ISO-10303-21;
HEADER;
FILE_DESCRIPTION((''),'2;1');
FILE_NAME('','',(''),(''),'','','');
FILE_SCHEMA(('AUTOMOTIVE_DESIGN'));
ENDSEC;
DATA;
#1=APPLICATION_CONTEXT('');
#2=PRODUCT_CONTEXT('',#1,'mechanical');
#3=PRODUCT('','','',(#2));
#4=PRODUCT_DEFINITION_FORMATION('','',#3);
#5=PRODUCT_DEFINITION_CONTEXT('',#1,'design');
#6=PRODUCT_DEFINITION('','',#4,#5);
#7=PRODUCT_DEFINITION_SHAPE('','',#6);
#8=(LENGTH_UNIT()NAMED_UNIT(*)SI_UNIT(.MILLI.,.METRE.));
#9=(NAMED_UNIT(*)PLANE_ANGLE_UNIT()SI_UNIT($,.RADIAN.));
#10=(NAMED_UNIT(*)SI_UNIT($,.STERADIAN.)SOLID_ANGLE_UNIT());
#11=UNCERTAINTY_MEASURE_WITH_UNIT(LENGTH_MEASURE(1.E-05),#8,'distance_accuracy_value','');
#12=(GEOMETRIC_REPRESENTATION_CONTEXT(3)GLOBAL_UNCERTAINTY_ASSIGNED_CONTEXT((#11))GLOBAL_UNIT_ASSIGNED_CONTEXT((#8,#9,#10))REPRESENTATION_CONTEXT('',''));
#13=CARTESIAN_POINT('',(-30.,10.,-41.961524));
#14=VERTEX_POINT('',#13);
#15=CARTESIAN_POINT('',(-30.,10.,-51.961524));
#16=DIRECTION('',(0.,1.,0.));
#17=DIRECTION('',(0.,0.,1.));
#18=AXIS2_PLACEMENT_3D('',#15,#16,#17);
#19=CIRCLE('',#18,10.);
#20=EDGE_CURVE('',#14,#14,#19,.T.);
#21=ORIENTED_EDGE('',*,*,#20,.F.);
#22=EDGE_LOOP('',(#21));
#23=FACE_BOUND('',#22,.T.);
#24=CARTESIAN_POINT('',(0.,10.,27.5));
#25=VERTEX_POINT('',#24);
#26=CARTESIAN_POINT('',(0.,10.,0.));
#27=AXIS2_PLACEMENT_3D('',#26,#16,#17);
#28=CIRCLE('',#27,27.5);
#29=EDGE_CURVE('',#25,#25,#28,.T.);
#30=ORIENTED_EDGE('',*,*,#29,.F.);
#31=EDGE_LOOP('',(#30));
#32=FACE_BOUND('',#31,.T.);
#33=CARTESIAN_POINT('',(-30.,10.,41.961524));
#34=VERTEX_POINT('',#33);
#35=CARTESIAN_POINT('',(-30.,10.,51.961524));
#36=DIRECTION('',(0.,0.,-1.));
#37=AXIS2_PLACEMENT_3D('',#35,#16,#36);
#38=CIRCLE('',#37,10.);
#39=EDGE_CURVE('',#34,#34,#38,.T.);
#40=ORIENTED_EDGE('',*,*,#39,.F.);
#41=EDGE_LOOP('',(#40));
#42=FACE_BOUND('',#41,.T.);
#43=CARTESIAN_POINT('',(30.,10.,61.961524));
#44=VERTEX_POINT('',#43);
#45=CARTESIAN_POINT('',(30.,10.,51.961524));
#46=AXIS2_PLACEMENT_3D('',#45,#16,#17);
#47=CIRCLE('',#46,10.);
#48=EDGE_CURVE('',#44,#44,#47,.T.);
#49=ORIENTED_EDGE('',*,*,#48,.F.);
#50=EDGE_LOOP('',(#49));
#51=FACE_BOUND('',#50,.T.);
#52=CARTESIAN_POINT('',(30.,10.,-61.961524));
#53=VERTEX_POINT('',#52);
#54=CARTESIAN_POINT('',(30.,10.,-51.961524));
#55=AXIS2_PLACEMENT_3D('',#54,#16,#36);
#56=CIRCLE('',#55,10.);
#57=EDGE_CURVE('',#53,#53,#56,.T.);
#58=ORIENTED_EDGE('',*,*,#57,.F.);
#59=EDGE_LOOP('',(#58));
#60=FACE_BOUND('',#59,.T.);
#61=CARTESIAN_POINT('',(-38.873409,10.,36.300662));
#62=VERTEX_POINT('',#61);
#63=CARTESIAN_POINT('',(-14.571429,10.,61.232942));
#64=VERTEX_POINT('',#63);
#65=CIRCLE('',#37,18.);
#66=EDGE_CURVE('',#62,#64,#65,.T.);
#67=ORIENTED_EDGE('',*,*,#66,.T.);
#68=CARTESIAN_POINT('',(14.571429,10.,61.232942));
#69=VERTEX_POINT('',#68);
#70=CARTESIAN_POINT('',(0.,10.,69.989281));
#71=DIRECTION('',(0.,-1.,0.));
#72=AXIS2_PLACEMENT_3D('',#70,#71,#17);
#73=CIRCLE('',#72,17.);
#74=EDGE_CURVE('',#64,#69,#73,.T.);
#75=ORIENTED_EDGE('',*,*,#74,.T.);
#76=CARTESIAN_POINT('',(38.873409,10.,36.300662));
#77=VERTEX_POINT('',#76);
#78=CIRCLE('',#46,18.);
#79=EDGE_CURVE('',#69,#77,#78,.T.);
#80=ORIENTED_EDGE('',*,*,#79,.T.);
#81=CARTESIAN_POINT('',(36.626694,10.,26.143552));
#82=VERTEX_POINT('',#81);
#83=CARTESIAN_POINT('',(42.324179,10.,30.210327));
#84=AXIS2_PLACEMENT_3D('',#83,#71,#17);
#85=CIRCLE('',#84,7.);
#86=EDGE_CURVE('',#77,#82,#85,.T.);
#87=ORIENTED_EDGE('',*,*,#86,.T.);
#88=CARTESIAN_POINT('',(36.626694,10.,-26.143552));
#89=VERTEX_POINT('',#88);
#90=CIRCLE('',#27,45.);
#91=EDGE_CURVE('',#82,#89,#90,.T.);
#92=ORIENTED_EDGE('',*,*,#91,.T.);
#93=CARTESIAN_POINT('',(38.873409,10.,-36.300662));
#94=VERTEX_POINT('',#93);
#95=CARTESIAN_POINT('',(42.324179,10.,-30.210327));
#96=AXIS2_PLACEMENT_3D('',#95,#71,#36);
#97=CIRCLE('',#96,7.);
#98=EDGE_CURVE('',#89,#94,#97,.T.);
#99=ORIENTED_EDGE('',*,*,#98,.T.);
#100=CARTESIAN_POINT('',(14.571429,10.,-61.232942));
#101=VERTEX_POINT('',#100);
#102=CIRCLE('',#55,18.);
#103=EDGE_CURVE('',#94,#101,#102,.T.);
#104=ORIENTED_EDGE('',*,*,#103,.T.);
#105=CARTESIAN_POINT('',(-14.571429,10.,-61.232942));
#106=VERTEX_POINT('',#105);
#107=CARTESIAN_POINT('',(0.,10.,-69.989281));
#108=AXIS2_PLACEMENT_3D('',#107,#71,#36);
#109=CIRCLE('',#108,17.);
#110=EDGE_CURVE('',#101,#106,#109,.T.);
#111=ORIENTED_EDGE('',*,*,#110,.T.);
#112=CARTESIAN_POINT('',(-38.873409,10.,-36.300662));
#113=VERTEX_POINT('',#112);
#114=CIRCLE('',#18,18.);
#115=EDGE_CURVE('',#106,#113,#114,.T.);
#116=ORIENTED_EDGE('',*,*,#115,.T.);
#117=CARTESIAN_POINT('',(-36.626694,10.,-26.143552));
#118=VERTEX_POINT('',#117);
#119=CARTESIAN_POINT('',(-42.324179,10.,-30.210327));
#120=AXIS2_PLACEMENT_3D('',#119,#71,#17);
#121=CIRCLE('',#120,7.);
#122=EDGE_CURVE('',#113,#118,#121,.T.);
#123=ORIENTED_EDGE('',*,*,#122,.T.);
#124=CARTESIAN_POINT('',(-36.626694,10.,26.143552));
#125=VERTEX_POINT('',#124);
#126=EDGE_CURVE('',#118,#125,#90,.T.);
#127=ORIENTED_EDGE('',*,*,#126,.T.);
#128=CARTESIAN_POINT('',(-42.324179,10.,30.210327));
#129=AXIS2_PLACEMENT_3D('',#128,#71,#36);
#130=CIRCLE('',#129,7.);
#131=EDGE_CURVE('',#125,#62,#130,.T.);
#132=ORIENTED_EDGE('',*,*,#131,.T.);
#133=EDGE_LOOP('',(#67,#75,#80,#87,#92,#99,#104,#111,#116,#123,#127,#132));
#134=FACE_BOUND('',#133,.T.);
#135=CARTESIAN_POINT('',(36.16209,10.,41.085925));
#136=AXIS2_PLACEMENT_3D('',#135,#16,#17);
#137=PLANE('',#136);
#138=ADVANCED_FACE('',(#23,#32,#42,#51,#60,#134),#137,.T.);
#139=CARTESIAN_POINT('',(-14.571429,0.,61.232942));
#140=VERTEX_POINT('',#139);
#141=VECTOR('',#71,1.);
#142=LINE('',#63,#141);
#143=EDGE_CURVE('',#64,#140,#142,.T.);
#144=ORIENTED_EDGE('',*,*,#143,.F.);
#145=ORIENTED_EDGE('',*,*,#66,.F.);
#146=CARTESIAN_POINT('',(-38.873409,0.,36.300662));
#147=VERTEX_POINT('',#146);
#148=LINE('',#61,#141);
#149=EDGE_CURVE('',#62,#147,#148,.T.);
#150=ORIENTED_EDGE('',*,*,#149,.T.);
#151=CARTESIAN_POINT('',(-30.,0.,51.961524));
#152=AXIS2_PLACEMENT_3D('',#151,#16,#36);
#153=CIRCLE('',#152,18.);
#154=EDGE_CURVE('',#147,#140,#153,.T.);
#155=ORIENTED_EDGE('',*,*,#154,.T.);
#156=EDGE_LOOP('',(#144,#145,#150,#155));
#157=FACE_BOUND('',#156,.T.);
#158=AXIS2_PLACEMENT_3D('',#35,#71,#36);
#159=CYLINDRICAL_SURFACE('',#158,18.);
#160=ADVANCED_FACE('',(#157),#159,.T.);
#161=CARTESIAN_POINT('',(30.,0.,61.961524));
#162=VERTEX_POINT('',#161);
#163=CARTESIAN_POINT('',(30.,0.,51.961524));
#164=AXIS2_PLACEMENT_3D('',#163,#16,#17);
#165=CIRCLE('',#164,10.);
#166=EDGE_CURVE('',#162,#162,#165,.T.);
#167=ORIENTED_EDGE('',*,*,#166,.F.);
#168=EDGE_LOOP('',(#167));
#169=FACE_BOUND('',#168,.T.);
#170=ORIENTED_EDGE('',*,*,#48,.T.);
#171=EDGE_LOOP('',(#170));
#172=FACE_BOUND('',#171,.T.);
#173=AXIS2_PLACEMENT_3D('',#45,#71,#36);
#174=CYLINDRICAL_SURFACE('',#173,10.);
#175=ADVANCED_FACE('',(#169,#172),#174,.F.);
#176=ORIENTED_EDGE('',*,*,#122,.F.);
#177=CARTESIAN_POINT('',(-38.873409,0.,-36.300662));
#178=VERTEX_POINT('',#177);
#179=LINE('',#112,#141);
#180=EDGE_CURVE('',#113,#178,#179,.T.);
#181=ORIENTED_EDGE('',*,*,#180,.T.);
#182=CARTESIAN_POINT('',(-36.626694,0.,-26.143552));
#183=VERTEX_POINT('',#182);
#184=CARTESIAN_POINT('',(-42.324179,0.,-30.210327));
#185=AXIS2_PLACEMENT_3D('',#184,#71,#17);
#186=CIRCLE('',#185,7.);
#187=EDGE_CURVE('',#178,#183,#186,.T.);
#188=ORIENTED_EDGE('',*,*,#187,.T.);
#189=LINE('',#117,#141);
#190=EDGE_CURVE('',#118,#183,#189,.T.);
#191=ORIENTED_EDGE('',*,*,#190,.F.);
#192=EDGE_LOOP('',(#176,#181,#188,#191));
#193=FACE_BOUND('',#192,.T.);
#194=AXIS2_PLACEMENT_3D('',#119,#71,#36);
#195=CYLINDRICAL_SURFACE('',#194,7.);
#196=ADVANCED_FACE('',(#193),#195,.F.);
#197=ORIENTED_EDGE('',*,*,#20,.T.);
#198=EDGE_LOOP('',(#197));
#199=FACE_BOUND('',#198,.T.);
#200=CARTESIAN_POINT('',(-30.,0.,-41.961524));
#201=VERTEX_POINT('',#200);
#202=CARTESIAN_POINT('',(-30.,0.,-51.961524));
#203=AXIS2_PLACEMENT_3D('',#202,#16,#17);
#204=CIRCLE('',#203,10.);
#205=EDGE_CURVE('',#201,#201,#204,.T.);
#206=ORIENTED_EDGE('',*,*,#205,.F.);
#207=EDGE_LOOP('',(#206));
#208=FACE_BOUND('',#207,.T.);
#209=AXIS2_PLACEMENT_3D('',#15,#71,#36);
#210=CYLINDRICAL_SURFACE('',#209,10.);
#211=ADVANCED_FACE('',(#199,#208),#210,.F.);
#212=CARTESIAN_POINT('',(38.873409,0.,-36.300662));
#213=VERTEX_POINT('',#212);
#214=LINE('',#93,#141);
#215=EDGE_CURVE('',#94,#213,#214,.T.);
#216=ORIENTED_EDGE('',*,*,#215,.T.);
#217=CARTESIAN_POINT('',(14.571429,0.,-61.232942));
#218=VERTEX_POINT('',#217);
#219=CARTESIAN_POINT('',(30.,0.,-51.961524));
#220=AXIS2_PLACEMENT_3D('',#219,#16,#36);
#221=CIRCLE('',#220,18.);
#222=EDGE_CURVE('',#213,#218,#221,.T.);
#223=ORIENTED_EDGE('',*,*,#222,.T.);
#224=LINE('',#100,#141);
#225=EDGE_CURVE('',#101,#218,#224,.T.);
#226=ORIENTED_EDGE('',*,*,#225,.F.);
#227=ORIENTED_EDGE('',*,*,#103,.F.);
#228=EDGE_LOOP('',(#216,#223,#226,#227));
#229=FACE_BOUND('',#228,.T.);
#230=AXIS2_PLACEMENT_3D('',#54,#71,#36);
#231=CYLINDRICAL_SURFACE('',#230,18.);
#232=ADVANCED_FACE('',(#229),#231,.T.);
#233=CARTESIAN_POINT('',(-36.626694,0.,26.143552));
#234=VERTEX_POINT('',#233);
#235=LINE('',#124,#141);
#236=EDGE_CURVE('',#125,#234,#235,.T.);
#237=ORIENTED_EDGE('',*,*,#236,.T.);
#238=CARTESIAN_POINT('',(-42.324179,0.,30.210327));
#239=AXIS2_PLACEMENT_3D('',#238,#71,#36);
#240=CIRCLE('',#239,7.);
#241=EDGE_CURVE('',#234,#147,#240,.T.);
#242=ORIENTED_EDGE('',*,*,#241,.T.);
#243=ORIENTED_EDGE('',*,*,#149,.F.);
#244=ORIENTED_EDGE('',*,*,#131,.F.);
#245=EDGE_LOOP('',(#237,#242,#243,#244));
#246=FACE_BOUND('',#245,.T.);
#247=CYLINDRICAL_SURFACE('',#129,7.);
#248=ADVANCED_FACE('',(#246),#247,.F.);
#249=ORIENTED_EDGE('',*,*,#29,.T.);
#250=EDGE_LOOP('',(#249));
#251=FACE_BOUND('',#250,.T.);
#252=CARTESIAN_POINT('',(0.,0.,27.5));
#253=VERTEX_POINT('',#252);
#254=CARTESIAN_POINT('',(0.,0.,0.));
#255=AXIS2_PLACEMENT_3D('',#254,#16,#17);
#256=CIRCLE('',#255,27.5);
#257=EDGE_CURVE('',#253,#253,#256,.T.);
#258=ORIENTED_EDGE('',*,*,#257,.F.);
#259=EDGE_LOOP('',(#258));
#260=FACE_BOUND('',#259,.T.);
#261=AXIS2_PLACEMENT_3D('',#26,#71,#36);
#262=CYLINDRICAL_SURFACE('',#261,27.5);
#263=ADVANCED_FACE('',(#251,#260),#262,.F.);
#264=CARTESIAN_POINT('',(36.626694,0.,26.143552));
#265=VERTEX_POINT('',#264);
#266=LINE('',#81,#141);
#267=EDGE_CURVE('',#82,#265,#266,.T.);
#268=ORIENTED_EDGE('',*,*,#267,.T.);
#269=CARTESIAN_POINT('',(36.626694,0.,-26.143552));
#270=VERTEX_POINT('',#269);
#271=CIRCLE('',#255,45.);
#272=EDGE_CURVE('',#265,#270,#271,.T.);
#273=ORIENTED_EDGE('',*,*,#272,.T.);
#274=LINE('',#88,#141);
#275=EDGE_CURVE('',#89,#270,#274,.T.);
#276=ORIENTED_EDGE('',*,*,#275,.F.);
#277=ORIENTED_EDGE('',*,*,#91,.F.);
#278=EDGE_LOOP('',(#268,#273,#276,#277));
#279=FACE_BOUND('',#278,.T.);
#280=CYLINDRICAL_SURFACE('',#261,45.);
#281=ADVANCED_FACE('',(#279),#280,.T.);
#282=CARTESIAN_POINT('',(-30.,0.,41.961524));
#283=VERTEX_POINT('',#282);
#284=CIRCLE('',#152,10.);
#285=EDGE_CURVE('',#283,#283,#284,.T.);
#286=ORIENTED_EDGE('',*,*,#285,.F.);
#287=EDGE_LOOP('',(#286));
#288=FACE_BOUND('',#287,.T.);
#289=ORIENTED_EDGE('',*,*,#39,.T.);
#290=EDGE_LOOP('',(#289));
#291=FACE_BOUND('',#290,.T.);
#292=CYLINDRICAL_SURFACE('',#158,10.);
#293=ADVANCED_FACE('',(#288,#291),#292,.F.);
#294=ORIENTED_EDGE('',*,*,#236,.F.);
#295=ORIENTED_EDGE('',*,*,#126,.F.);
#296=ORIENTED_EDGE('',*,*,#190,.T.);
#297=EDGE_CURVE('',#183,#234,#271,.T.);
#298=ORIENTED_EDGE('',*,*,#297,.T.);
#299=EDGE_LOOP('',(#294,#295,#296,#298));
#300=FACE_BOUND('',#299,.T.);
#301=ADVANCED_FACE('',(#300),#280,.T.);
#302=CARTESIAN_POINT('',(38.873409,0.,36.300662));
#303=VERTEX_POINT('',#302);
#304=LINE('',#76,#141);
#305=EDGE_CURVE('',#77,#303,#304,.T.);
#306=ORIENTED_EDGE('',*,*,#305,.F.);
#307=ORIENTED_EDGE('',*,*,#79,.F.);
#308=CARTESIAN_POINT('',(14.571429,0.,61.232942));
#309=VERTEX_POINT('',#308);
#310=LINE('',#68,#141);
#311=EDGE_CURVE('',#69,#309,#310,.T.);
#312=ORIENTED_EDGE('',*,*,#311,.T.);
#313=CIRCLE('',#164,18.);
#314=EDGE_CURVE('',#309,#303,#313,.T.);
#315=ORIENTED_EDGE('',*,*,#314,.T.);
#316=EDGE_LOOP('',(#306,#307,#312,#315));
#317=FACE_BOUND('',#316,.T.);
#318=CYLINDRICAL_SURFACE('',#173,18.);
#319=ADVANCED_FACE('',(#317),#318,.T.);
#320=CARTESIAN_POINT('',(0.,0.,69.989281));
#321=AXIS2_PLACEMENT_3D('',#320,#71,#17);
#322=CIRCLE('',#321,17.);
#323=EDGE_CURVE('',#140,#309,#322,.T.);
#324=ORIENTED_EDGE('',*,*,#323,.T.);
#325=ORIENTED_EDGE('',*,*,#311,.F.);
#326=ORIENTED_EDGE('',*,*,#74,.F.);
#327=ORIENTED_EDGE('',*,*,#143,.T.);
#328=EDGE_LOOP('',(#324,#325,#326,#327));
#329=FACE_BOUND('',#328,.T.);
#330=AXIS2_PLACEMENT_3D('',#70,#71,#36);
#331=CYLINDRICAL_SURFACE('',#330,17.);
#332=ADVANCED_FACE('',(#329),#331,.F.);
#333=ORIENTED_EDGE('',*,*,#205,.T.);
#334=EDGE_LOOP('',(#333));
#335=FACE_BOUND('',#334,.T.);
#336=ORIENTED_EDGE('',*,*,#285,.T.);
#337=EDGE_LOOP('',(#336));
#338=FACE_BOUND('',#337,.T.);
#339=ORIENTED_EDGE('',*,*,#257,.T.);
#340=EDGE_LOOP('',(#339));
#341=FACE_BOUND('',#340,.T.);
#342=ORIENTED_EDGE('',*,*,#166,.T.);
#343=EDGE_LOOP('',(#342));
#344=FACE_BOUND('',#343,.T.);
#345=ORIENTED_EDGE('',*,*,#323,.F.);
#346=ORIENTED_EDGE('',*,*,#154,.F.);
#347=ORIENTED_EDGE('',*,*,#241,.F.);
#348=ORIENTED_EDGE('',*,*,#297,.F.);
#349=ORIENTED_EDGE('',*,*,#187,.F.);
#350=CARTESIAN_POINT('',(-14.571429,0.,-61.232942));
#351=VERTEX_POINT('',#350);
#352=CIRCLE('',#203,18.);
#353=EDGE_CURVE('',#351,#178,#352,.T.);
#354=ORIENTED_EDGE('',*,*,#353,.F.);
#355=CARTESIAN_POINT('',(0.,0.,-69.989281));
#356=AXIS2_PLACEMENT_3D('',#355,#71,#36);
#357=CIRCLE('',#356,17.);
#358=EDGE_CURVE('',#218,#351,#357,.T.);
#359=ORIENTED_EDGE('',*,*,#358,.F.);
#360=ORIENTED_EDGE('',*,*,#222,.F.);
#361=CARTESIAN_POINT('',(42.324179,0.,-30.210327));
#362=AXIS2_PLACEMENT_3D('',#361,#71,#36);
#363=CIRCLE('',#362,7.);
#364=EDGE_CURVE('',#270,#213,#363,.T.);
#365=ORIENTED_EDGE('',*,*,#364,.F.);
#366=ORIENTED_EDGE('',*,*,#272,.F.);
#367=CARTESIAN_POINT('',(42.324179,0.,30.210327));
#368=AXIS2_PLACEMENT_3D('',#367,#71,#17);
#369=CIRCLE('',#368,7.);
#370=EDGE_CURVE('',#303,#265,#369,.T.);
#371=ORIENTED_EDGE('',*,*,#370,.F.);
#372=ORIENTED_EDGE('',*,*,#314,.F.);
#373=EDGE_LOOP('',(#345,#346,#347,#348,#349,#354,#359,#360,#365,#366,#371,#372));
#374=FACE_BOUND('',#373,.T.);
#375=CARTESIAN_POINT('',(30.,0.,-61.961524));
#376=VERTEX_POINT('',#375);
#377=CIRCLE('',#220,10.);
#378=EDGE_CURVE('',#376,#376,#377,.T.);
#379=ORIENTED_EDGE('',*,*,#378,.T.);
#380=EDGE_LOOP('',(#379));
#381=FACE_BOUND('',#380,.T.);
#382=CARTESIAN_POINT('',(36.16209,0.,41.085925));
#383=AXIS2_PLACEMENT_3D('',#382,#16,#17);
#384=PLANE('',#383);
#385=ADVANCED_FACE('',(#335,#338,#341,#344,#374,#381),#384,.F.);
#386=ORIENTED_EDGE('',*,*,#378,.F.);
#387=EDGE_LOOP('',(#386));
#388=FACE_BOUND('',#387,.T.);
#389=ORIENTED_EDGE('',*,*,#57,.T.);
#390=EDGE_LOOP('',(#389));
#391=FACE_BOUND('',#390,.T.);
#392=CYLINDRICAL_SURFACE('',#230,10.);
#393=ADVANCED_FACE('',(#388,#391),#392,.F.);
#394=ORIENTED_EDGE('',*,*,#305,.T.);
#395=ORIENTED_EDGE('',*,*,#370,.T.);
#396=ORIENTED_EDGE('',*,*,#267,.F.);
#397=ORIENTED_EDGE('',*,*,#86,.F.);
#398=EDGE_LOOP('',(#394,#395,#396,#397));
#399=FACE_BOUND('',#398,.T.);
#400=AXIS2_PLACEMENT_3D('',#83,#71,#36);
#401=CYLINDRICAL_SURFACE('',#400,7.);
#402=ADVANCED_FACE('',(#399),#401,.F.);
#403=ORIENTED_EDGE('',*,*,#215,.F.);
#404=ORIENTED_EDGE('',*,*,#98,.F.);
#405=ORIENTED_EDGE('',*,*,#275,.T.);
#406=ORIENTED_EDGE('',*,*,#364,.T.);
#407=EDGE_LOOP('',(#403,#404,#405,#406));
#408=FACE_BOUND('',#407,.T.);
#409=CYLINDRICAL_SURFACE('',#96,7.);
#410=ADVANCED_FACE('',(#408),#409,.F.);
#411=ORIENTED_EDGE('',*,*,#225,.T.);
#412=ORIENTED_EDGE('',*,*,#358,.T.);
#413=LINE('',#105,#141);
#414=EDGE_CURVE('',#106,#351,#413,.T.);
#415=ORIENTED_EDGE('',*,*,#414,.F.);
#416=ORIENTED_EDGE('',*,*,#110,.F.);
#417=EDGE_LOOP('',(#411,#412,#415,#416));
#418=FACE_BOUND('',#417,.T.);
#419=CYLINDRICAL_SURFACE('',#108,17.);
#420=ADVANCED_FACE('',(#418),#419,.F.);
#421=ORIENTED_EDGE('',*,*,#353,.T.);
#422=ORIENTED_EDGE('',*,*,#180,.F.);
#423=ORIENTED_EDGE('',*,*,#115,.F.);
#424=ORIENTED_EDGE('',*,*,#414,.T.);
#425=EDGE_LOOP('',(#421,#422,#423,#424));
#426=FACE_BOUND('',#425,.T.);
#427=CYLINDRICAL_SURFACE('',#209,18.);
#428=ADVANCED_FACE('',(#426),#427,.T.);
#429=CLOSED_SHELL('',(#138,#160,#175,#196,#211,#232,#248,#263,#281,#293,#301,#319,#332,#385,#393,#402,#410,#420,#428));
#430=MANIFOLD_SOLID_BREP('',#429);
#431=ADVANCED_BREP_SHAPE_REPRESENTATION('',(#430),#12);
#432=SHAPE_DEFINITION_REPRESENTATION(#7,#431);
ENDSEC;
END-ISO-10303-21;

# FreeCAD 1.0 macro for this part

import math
import FreeCAD as App
import Part
import Sketcher

V = App.Vector
Q = App.Units.Quantity

doc = App.newDocument("Part")
body = doc.addObject("PartDesign::Body", "Body")

sketch1 = doc.addObject("Sketcher::SketchObject", "Sketch")
body.addObject(sketch1)
sketch1.AttachmentSupport = (doc.XZ_Plane, [""])
sketch1.MapMode = "FlatFace"
sketch1.addGeometry([
    Part.ArcOfCircle(Part.Circle(V(0, 0, 0), V(0, 0, 1), 45), math.radians(-36), math.radians(36)),
    Part.ArcOfCircle(Part.Circle(V(42, -30, 0), V(0, 0, 1), 7), math.radians(144), math.radians(240)),
    Part.ArcOfCircle(Part.Circle(V(30, -52, 0), V(0, 0, 1), 18), math.radians(-149), math.radians(60)),
    Part.ArcOfCircle(Part.Circle(V(0, -70, 0), V(0, 0, 1), 17), math.radians(31), math.radians(149)),
    Part.ArcOfCircle(Part.Circle(V(-30, -52, 0), V(0, 0, 1), 18), math.radians(120), math.radians(329)),
    Part.ArcOfCircle(Part.Circle(V(-42, -30, 0), V(0, 0, 1), 7), math.radians(-60), math.radians(36)),
    Part.ArcOfCircle(Part.Circle(V(0, 0, 0), V(0, 0, 1), 45), math.radians(144), math.radians(216)),
    Part.ArcOfCircle(Part.Circle(V(-42, 30, 0), V(0, 0, 1), 7), math.radians(-36), math.radians(60)),
    Part.ArcOfCircle(Part.Circle(V(-30, 52, 0), V(0, 0, 1), 18), math.radians(31), math.radians(240)),
    Part.ArcOfCircle(Part.Circle(V(0, 70, 0), V(0, 0, 1), 17), math.radians(-149), math.radians(-31)),
    Part.ArcOfCircle(Part.Circle(V(30, 52, 0), V(0, 0, 1), 18), math.radians(-60), math.radians(149)),
    Part.ArcOfCircle(Part.Circle(V(42, 30, 0), V(0, 0, 1), 7), math.radians(120), math.radians(216)),
    Part.Circle(V(-30, 52, 0), V(0, 0, 1), 10),
    Part.Circle(V(30, 52, 0), V(0, 0, 1), 10),
    Part.Circle(V(-30, -52, 0), V(0, 0, 1), 10),
    Part.Circle(V(0, 0, 0), V(0, 0, 1), 28),
    Part.Circle(V(30, -52, 0), V(0, 0, 1), 10),
], False)
sketch1.addConstraint([
    Sketcher.Constraint("Tangent", 0, 1, 1, 1),
    Sketcher.Constraint("Tangent", 1, 2, 2, 2),
    Sketcher.Constraint("Tangent", 2, 1, 3, 1),
    Sketcher.Constraint("Tangent", 3, 2, 4, 2),
    Sketcher.Constraint("Tangent", 4, 1, 5, 1),
    Sketcher.Constraint("Tangent", 5, 2, 6, 2),
    Sketcher.Constraint("Tangent", 6, 1, 7, 1),
    Sketcher.Constraint("Tangent", 7, 2, 8, 2),
    Sketcher.Constraint("Tangent", 8, 1, 9, 1),
    Sketcher.Constraint("Tangent", 9, 2, 10, 2),
    Sketcher.Constraint("Tangent", 10, 1, 11, 1),
    Sketcher.Constraint("Tangent", 11, 2, 0, 2),
    Sketcher.Constraint("Coincident", 0, 3, -1, 1),
    Sketcher.Constraint("Coincident", 6, 3, -1, 1),
    Sketcher.Constraint("Coincident", 15, 3, -1, 1),
    Sketcher.Constraint("Coincident", 12, 3, 8, 3),
    Sketcher.Constraint("Coincident", 13, 3, 10, 3),
    Sketcher.Constraint("Coincident", 14, 3, 4, 3),
    Sketcher.Constraint("Coincident", 16, 3, 2, 3),
    Sketcher.Constraint("Equal", 2, 4),
    Sketcher.Constraint("Equal", 1, 5),
    Sketcher.Constraint("Equal", 0, 6),
    Sketcher.Constraint("Equal", 5, 7),
    Sketcher.Constraint("Equal", 4, 8),
    Sketcher.Constraint("Equal", 3, 9),
    Sketcher.Constraint("Equal", 8, 10),
    Sketcher.Constraint("Equal", 7, 11),
    Sketcher.Constraint("Equal", 12, 13),
    Sketcher.Constraint("Equal", 13, 14),
    Sketcher.Constraint("Equal", 14, 16),
    Sketcher.Constraint("Symmetric", 2, 3, 8, 3, -1, 1),
    Sketcher.Constraint("Symmetric", 4, 3, 10, 3, -1, 1),
    Sketcher.Constraint("Symmetric", 2, 3, 4, 3, -2),
    Sketcher.Constraint("Diameter", 12, Q("20 mm")),
    Sketcher.Constraint("Diameter", 15, Q("55 mm")),
    Sketcher.Constraint("Radius", 0, Q("45 mm")),
    Sketcher.Constraint("Radius", 1, Q("7 mm")),
    Sketcher.Constraint("Radius", 2, Q("18 mm")),
    Sketcher.Constraint("Radius", 3, Q("17 mm")),
    Sketcher.Constraint("DistanceX", -1, 1, 2, 3, Q("30 mm")),
    Sketcher.Constraint("DistanceX", -1, 1, 1, 3, Q("42.324179 mm")),
])
pad1 = doc.addObject("PartDesign::Pad", "Pad")
body.addObject(pad1)
pad1.Profile = sketch1
pad1.Length = 10
pad1.Reversed = True

doc.recompute()
